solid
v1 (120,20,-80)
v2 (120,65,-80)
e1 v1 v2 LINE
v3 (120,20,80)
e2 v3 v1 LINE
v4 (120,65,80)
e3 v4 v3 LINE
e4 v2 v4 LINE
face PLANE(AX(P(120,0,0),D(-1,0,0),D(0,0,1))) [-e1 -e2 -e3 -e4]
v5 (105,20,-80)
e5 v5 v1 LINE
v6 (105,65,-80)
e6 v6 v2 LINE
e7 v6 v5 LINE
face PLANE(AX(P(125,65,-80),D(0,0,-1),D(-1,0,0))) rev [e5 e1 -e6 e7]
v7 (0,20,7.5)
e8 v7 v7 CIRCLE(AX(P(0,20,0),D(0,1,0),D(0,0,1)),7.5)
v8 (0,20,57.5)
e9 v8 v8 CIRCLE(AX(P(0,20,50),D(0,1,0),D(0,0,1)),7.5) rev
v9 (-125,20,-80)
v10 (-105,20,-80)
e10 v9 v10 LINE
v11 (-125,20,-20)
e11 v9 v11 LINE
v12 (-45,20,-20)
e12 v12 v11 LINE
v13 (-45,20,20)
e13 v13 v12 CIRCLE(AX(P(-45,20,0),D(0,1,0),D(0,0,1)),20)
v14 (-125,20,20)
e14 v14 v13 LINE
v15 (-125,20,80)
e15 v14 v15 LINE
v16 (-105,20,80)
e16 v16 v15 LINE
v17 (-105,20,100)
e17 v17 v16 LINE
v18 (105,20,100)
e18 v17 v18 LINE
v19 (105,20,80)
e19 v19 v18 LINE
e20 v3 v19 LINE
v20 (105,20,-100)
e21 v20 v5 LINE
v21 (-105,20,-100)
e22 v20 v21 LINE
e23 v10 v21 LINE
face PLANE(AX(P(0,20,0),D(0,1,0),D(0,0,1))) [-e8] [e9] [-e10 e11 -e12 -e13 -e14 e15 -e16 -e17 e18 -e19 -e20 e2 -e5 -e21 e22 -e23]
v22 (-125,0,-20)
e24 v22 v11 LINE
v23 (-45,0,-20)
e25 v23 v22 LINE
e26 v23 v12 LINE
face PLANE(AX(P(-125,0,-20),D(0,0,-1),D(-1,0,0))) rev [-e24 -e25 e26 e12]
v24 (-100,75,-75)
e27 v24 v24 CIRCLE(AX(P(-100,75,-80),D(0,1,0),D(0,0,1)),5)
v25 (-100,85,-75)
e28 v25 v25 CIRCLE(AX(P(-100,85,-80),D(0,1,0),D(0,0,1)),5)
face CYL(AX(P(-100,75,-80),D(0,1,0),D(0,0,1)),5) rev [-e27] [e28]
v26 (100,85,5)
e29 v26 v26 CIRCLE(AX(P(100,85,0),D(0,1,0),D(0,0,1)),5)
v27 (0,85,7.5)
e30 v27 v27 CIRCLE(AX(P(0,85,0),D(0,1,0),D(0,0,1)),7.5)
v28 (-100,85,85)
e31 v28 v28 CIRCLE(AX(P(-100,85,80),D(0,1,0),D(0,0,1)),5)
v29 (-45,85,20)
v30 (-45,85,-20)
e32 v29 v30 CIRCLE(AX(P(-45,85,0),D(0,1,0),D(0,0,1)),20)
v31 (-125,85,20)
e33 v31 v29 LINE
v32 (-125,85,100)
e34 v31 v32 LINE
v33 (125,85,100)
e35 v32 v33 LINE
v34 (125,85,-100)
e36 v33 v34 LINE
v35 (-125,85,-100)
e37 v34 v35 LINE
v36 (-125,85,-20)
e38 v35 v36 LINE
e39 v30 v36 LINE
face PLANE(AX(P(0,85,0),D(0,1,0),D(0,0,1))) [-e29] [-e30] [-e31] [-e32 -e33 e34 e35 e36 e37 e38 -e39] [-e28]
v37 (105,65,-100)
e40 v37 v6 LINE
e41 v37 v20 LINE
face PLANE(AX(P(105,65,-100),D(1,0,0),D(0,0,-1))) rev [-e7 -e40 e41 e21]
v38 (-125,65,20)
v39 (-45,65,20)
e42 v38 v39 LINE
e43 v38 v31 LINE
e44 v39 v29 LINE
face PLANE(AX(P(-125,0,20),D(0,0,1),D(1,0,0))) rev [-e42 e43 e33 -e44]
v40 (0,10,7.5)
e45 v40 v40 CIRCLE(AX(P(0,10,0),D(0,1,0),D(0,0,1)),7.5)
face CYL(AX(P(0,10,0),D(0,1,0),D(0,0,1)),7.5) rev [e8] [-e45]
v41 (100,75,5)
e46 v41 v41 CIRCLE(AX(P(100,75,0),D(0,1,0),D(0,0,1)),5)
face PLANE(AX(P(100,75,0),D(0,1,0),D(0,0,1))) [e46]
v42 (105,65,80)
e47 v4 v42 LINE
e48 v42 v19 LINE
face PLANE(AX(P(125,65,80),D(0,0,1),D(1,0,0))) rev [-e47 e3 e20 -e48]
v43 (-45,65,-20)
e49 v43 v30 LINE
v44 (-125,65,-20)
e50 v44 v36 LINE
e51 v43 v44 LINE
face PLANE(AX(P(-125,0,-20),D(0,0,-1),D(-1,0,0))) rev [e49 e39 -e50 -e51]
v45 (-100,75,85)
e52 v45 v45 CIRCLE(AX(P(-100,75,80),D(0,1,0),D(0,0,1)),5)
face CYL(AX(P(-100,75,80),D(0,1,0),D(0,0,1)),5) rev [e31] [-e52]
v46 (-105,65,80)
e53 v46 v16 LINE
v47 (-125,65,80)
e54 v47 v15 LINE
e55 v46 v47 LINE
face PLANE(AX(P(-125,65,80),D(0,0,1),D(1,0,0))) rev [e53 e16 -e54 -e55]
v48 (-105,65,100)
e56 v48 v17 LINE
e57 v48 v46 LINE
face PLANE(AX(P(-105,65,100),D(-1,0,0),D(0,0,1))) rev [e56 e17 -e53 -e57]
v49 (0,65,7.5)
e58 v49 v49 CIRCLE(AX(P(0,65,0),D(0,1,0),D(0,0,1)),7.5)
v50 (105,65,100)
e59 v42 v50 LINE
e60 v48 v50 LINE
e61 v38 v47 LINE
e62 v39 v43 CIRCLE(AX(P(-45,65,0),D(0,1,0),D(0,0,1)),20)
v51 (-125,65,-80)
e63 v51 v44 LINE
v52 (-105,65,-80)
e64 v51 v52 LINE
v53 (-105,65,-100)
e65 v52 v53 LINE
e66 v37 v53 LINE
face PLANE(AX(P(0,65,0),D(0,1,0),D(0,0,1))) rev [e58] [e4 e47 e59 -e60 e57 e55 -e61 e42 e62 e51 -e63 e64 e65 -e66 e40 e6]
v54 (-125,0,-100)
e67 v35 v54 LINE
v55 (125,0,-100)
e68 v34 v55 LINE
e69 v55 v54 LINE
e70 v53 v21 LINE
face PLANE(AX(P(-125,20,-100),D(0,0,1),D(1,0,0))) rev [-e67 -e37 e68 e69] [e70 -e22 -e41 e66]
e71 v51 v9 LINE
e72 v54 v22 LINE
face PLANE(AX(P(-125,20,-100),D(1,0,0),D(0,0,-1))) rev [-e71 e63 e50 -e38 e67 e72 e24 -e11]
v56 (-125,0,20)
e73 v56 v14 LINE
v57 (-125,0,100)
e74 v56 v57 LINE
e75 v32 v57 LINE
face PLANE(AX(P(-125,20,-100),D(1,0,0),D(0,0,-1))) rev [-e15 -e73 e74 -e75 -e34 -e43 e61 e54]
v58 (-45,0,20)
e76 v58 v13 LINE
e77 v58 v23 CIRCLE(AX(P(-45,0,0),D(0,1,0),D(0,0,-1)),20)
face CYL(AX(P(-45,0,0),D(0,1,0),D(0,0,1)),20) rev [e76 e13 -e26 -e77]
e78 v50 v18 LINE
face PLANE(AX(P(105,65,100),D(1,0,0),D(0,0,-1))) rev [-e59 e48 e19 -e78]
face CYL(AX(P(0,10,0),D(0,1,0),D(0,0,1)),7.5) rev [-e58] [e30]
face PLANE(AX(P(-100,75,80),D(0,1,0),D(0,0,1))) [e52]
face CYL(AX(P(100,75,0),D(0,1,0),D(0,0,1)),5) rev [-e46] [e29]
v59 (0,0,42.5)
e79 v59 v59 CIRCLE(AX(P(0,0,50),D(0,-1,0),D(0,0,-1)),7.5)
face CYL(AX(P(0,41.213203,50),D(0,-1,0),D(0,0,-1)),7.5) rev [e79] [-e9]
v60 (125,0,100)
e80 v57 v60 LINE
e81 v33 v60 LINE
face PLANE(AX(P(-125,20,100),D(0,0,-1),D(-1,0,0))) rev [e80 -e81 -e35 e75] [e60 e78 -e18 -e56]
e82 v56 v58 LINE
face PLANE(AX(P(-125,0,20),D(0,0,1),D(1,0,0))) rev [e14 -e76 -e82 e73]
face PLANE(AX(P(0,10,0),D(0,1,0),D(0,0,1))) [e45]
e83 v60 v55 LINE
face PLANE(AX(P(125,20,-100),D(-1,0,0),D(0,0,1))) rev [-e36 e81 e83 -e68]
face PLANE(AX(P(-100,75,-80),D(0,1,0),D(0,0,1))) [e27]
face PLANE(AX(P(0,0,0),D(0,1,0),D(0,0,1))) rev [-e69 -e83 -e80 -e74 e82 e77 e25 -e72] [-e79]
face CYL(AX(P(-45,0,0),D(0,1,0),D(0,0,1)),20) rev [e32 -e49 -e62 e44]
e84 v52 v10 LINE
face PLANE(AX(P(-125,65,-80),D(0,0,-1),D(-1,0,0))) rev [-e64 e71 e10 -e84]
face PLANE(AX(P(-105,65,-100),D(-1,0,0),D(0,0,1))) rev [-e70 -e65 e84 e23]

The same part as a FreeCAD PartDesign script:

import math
import FreeCAD as App
import Part
import Sketcher
from FreeCAD import Vector
Q = App.Units.Quantity


def add_polygon(sketch, points):
    """Adds a closed chain of lines whose ends are joined by coincident constraints."""
    first, n = sketch.GeometryCount, len(points)
    for a, b in zip(points, points[1:] + points[:1]):
        sketch.addGeometry(Part.LineSegment(App.Vector(*a, 0), App.Vector(*b, 0)), False)
    for i in range(n):
        sketch.addConstraint(Sketcher.Constraint("Coincident", first + i, 2, first + (i + 1) % n, 1))

doc = App.newDocument("Part")
body = doc.addObject("PartDesign::Body", "Body")

# Sketch on XZ plane
sketch1 = body.newObject("Sketcher::SketchObject", "Sketch")
sketch1.AttachmentSupport = (doc.getObject("XZ_Plane"), [""])
sketch1.MapMode = "FlatFace"
add_polygon(sketch1, [(-125, -100), (-125, 100), (125, 100), (125, -100)])  # lines 0-3
sketch1.addConstraint([
    Sketcher.Constraint("Vertical", 0),
    Sketcher.Constraint("Horizontal", 1),
    Sketcher.Constraint("Vertical", 2),
    Sketcher.Constraint("Horizontal", 3),
    Sketcher.Constraint("Symmetric", 0, 2, 2, 2, -1, 1),
    Sketcher.Constraint("DistanceX", 1, 1, 1, 2, Q("250 mm")),
    Sketcher.Constraint("DistanceY", 0, 1, 0, 2, Q("200 mm")),
])
pad1 = body.newObject("PartDesign::Pad", "Pad")
pad1.Profile = sketch1
pad1.Length = 20
pad1.Reversed = True
body2 = doc.addObject("PartDesign::Body", "Body001")

# Sketch on XZ plane
sketch2 = body2.newObject("Sketcher::SketchObject", "Sketch001")
sketch2.AttachmentSupport = (doc.getObject("XZ_Plane001"), [""])
sketch2.MapMode = "FlatFace"
sketch2.AttachmentOffset = App.Placement(Vector(0, 0, -65), App.Rotation())
add_polygon(sketch2, [(-125, -100), (-125, 100), (125, 100), (125, -100)])  # lines 0-3
sketch2.addConstraint([
    Sketcher.Constraint("Vertical", 0),
    Sketcher.Constraint("Horizontal", 1),
    Sketcher.Constraint("Vertical", 2),
    Sketcher.Constraint("Horizontal", 3),
    Sketcher.Constraint("Symmetric", 0, 2, 2, 2, -1, 1),
    Sketcher.Constraint("DistanceX", 1, 1, 1, 2, Q("250 mm")),
    Sketcher.Constraint("DistanceY", 0, 1, 0, 2, Q("200 mm")),
])
pad2 = body2.newObject("PartDesign::Pad", "Pad001")
pad2.Profile = sketch2
pad2.Length = 20
pad2.Reversed = True
body.AllowCompound = True
doc.recompute()

boolean = body.newObject("PartDesign::Boolean", "Boolean")
boolean.Type = "Fuse"
boolean.addObjects([body2])

# Sketch on XZ plane
sketch3 = body.newObject("Sketcher::SketchObject", "Sketch002")
sketch3.AttachmentSupport = (doc.getObject("XZ_Plane"), [""])
sketch3.MapMode = "FlatFace"
sketch3.AttachmentOffset = App.Placement(Vector(0, 0, -20), App.Rotation())
add_polygon(sketch3, [(-125, 80), (-125, 100), (-105, 100), (-105, 80)])  # lines 0-3
add_polygon(sketch3, [(-125, -100), (-125, -80), (-105, -80), (-105, -100)])  # lines 4-7
add_polygon(sketch3, [(105, -100), (105, -80), (125, -80), (125, -100)])  # lines 8-11
add_polygon(sketch3, [(105, 80), (105, 100), (125, 100), (125, 80)])  # lines 12-15
sketch3.addConstraint([
    Sketcher.Constraint("Vertical", 0),
    Sketcher.Constraint("Horizontal", 1),
    Sketcher.Constraint("Vertical", 2),
    Sketcher.Constraint("Horizontal", 3),
    Sketcher.Constraint("Vertical", 4),
    Sketcher.Constraint("Horizontal", 5),
    Sketcher.Constraint("Vertical", 6),
    Sketcher.Constraint("Horizontal", 7),
    Sketcher.Constraint("Vertical", 8),
    Sketcher.Constraint("Horizontal", 9),
    Sketcher.Constraint("Vertical", 10),
    Sketcher.Constraint("Horizontal", 11),
    Sketcher.Constraint("Vertical", 12),
    Sketcher.Constraint("Horizontal", 13),
    Sketcher.Constraint("Vertical", 14),
    Sketcher.Constraint("Horizontal", 15),
    Sketcher.Constraint("Symmetric", 2, 2, 8, 2, -1, 1),
    Sketcher.Constraint("Symmetric", 0, 2, 10, 2, -1, 1),
    Sketcher.Constraint("Symmetric", 6, 2, 12, 2, -1, 1),
    Sketcher.Constraint("Symmetric", 4, 2, 14, 2, -1, 1),
    Sketcher.Constraint("Symmetric", 5, 2, 8, 2, -2),
    Sketcher.Constraint("Symmetric", 7, 2, 10, 2, -2),
    Sketcher.Constraint("Equal", 15, 0),
    Sketcher.Constraint("DistanceX", 1, 1, 1, 2, Q("20 mm")),
    Sketcher.Constraint("DistanceX", 0, 2, -1, 1, Q("125 mm")),
    Sketcher.Constraint("DistanceY", -1, 1, 0, 2, Q("100 mm")),
])
pad3 = body.newObject("PartDesign::Pad", "Pad002")
pad3.Profile = sketch3
pad3.Length = 45
pad3.Reversed = True

# Sketch on XZ plane
sketch4 = body.newObject("Sketcher::SketchObject", "Sketch003")
sketch4.AttachmentSupport = (doc.getObject("XZ_Plane"), [""])
sketch4.MapMode = "FlatFace"
sketch4.AttachmentOffset = App.Placement(Vector(0, 0, -85), App.Rotation())
sketch4.addGeometry([
    Part.Circle(Vector(100, 0, 0), Vector(0, 0, 1), 5),
    Part.Circle(Vector(-100, 80, 0), Vector(0, 0, 1), 5),
    Part.Circle(Vector(-100, -80, 0), Vector(0, 0, 1), 5),
], False)
sketch4.addConstraint([
    Sketcher.Constraint("Equal", 0, 1),
    Sketcher.Constraint("Equal", 1, 2),
    Sketcher.Constraint("Symmetric", 1, 3, 2, 3, -1),
    Sketcher.Constraint("PointOnObject", 0, 3, -1),
    Sketcher.Constraint("Diameter", 0, Q("10 mm")),
    Sketcher.Constraint("DistanceX", -1, 1, 0, 3, Q("100 mm")),
    Sketcher.Constraint("DistanceX", 1, 3, -1, 1, Q("100 mm")),
    Sketcher.Constraint("DistanceY", -1, 1, 1, 3, Q("80 mm")),
])
pocket1 = body.newObject("PartDesign::Pocket", "Pocket")
pocket1.Profile = sketch4
pocket1.Length = 10
pocket1.Reversed = True

# Sketch on XZ plane
sketch5 = body.newObject("Sketcher::SketchObject", "Sketch004")
sketch5.AttachmentSupport = (doc.getObject("XZ_Plane"), [""])
sketch5.MapMode = "FlatFace"
sketch5.AttachmentOffset = App.Placement(Vector(0, 0, -85), App.Rotation())
sketch5.addGeometry(Part.Circle(Vector(0, 0, 0), Vector(0, 0, 1), 7.5), False)
sketch5.addConstraint([
    Sketcher.Constraint("Coincident", 0, 3, -1, 1),
    Sketcher.Constraint("Diameter", 0, Q("15 mm")),
])
pocket2 = body.newObject("PartDesign::Pocket", "Pocket001")
pocket2.Profile = sketch5
pocket2.Length = 75
pocket2.Reversed = True

# Sketch on XZ plane
sketch6 = body.newObject("Sketcher::SketchObject", "Sketch005")
sketch6.AttachmentSupport = (doc.getObject("XZ_Plane"), [""])
sketch6.MapMode = "FlatFace"
sketch6.AttachmentOffset = App.Placement(Vector(0, 0, -85), App.Rotation())
sketch6.addGeometry([
    Part.LineSegment(Vector(-45, -20, 0), Vector(-125, -20, 0)),
    Part.LineSegment(Vector(-125, -20, 0), Vector(-125, 20, 0)),
    Part.LineSegment(Vector(-125, 20, 0), Vector(-45, 20, 0)),
    Part.ArcOfCircle(Part.Circle(Vector(-45, 0, 0), Vector(0, 0, 1), 20), math.radians(-90), math.radians(90)),
], False)
sketch6.addConstraint([
    Sketcher.Constraint("Coincident", 0, 2, 1, 1),
    Sketcher.Constraint("Coincident", 1, 2, 2, 1),
    Sketcher.Constraint("Tangent", 2, 2, 3, 2),
    Sketcher.Constraint("Tangent", 3, 1, 0, 1),
    Sketcher.Constraint("Horizontal", 0),
    Sketcher.Constraint("Vertical", 1),
    Sketcher.Constraint("Horizontal", 2),
    Sketcher.Constraint("PointOnObject", 3, 3, -1),
    Sketcher.Constraint("Radius", 3, Q("20 mm")),
    Sketcher.Constraint("DistanceX", 0, 2, 0, 1, Q("80 mm")),
    Sketcher.Constraint("DistanceX", 3, 3, -1, 1, Q("45 mm")),
])
pocket3 = body.newObject("PartDesign::Pocket", "Pocket002")
pocket3.Profile = sketch6
pocket3.Type = "ThroughAll"
pocket3.Midplane = True

# Sketch on XZ plane
sketch7 = body.newObject("Sketcher::SketchObject", "Sketch006")
sketch7.AttachmentSupport = (doc.getObject("XZ_Plane"), [""])
sketch7.MapMode = "FlatFace"
sketch7.addGeometry(Part.Circle(Vector(0, 50, 0), Vector(0, 0, 1), 7.5), False)
sketch7.addConstraint([
    Sketcher.Constraint("PointOnObject", 0, 3, -2),
    Sketcher.Constraint("Diameter", 0, Q("15 mm")),
    Sketcher.Constraint("DistanceY", -1, 1, 0, 3, Q("50 mm")),
])
pocket4 = body.newObject("PartDesign::Pocket", "Pocket003")
pocket4.Profile = sketch7
pocket4.Length = 20

# Sketch on YZ plane
sketch8 = body.newObject("Sketcher::SketchObject", "Sketch007")
sketch8.AttachmentSupport = (doc.getObject("YZ_Plane"), [""])
sketch8.MapMode = "FlatFace"
sketch8.AttachmentOffset = App.Placement(Vector(0, 0, 125), App.Rotation())
add_polygon(sketch8, [(65, 80), (20, 80), (20, -80), (65, -80)])  # lines 0-3
sketch8.addConstraint([
    Sketcher.Constraint("Horizontal", 0),
    Sketcher.Constraint("Vertical", 1),
    Sketcher.Constraint("Horizontal", 2),
    Sketcher.Constraint("Vertical", 3),
    Sketcher.Constraint("DistanceX", 0, 2, 0, 1, Q("45 mm")),
    Sketcher.Constraint("DistanceY", 1, 2, 1, 1, Q("160 mm")),
    Sketcher.Constraint("DistanceX", -1, 1, 0, 2, Q("20 mm")),
    Sketcher.Constraint("DistanceY", -1, 1, 0, 2, Q("80 mm")),
])
pad4 = body.newObject("PartDesign::Pad", "Pad003")
pad4.Profile = sketch8
pad4.Length = 5
pad4.Reversed = True

doc.recompute()
